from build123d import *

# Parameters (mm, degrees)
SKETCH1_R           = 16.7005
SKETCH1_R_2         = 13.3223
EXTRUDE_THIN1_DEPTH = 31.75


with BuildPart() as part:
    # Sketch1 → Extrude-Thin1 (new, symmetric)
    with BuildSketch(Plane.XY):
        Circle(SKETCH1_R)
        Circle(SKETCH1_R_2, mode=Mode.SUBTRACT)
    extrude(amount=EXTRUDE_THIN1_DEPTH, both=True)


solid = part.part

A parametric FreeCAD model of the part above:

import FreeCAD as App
import Part
import Sketcher
Q = App.Units.Quantity

doc = App.newDocument("Part")
body = doc.addObject("PartDesign::Body", "Body")

sketch1 = body.newObject("Sketcher::SketchObject", "Sketch")
sketch1.AttachmentSupport = (doc.getObject("XY_Plane"), [""])
sketch1.MapMode = "FlatFace"
sketch1.addGeometry([
    Part.Circle(App.Vector(0, 0, 0), App.Vector(0, 0, 1), 17),
    Part.Circle(App.Vector(0, 0, 0), App.Vector(0, 0, 1), 13),
], False)
sketch1.addConstraint([
    Sketcher.Constraint("Coincident", 0, 3, -1, 1),
    Sketcher.Constraint("Coincident", 1, 3, -1, 1),
    Sketcher.Constraint("Diameter", 0, Q("1.315 in")),
    Sketcher.Constraint("Diameter", 1, Q("1.049 in")),
])
pad1 = body.newObject("PartDesign::Pad", "Pad")
pad1.Profile = sketch1
pad1.Length = Q("2.5 in")
pad1.Midplane = True

doc.recompute()
